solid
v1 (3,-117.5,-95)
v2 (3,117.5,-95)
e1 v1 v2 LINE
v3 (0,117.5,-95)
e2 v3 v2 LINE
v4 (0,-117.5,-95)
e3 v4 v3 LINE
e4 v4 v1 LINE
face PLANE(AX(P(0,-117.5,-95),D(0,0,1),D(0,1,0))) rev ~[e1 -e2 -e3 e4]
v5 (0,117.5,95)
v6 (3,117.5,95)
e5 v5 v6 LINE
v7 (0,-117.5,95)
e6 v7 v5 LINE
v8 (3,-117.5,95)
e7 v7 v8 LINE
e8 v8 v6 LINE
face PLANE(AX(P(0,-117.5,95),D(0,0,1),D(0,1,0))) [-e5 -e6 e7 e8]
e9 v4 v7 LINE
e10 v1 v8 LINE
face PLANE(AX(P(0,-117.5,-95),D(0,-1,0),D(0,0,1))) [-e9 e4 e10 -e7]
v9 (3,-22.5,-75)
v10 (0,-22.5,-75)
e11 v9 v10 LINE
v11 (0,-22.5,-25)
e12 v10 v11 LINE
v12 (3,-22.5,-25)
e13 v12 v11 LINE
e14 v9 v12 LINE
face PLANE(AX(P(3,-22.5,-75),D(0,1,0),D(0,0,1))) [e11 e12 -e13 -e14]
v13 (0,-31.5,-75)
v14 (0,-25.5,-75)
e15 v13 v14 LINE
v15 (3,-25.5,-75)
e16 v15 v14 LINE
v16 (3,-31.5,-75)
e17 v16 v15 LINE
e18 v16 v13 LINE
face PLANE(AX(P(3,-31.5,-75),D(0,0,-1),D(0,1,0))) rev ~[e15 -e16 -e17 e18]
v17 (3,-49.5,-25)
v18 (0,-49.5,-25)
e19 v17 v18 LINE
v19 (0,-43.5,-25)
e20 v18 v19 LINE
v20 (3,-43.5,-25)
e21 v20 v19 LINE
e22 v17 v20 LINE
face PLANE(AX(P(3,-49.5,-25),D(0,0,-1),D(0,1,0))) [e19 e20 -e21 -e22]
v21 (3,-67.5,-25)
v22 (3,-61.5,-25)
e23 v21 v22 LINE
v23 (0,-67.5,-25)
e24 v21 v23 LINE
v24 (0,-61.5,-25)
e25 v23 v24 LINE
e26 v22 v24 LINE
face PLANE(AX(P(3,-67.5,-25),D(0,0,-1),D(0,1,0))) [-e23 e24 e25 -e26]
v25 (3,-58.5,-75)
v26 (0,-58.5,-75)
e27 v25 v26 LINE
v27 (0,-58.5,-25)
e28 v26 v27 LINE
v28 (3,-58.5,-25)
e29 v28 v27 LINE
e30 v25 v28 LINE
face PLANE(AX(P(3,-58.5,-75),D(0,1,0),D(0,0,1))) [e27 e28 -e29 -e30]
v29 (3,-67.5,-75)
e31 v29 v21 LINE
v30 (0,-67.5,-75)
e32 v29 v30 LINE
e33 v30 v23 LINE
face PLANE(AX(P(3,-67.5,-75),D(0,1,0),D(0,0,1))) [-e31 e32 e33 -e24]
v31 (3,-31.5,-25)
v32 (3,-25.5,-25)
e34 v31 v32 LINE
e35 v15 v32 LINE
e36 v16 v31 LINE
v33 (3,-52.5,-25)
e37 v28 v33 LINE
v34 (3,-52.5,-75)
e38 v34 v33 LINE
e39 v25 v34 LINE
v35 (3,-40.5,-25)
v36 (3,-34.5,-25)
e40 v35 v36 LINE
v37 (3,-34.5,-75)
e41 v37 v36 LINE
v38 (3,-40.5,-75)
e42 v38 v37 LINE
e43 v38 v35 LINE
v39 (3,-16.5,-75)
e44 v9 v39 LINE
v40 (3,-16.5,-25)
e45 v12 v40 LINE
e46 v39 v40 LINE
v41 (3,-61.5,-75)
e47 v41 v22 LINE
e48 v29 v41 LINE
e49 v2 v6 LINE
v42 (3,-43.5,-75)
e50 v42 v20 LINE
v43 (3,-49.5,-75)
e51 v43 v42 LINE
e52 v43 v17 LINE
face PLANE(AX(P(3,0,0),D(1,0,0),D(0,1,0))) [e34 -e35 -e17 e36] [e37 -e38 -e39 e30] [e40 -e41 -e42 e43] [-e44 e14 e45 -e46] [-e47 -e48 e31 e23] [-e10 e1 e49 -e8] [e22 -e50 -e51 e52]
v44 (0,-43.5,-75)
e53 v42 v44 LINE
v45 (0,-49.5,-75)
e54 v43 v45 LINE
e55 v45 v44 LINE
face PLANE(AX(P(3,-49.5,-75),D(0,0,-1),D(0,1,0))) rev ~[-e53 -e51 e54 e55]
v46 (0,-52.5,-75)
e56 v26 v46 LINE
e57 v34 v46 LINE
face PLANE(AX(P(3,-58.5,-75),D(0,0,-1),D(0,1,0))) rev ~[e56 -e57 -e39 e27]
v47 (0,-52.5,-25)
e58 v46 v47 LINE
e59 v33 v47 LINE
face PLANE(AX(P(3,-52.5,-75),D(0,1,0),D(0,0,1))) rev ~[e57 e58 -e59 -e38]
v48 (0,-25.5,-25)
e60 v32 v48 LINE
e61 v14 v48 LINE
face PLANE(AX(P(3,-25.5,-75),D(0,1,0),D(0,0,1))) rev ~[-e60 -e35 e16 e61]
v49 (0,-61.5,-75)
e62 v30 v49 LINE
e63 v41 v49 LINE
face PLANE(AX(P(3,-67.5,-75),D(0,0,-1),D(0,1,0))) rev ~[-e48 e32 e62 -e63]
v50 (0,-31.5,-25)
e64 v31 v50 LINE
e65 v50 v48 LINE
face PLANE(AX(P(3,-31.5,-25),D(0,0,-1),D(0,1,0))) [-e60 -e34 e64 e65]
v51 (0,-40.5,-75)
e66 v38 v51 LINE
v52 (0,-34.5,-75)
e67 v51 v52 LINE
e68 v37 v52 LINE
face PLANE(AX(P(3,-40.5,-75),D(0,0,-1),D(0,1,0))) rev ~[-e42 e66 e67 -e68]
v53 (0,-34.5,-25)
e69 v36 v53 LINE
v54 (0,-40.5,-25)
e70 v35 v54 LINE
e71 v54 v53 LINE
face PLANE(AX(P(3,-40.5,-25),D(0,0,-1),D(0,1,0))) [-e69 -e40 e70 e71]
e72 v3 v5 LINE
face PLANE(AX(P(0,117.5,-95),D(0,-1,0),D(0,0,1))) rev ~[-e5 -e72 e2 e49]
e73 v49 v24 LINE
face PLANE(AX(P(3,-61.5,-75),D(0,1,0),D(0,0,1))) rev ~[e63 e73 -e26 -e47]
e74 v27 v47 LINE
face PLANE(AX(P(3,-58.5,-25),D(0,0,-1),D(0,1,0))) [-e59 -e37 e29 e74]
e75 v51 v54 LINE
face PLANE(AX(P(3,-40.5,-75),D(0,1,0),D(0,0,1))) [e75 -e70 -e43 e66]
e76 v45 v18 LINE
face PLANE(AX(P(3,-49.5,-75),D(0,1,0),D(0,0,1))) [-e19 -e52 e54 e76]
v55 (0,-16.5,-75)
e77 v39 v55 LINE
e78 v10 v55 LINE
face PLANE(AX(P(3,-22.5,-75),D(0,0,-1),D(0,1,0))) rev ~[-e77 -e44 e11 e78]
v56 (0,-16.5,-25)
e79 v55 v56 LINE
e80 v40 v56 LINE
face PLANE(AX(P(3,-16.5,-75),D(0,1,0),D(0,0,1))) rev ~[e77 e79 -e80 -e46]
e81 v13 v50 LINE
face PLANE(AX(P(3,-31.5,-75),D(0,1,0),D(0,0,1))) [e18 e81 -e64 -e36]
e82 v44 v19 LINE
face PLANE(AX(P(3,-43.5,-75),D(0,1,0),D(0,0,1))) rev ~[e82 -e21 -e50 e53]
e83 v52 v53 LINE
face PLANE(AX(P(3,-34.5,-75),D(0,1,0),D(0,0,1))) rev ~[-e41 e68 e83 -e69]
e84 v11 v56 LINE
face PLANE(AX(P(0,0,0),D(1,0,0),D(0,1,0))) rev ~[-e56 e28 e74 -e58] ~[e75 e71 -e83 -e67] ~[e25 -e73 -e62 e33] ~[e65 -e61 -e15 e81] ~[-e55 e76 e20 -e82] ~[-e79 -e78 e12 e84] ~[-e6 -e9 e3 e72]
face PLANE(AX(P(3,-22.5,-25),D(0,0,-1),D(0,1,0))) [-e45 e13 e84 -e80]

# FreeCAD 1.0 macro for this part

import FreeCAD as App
import Part
import Sketcher
from FreeCAD import Vector

doc = App.newDocument("Part")
body = doc.addObject("PartDesign::Body", "Body")

# Sketch on YZ plane
sketch1 = body.newObject("Sketcher::SketchObject", "Sketch")
sketch1.AttachmentSupport = (doc.getObject("YZ_Plane"), [""])
sketch1.MapMode = "FlatFace"
sketch1.addGeometry([
    Part.LineSegment(Vector(-118, 95, 0), Vector(-118, -95, 0)),
    Part.LineSegment(Vector(-118, -95, 0), Vector(118, -95, 0)),
    Part.LineSegment(Vector(118, -95, 0), Vector(118, 95, 0)),
    Part.LineSegment(Vector(118, 95, 0), Vector(-118, 95, 0)),
], False)
sketch1.addConstraint([
    Sketcher.Constraint("Coincident", 0, 2, 1, 1),
    Sketcher.Constraint("Coincident", 1, 2, 2, 1),
    Sketcher.Constraint("Coincident", 2, 2, 3, 1),
    Sketcher.Constraint("Coincident", 3, 2, 0, 1),
    Sketcher.Constraint("Vertical", 0),
    Sketcher.Constraint("Horizontal", 1),
    Sketcher.Constraint("Vertical", 2),
    Sketcher.Constraint("Horizontal", 3),
    Sketcher.Constraint("Symmetric", 0, 2, 2, 2, -1, 1),
    Sketcher.Constraint("DistanceX", 1, 1, 1, 2, 235.0),
    Sketcher.Constraint("DistanceY", 0, 2, 0, 1, 190.0),
])
pad1 = body.newObject("PartDesign::Pad", "Pad")
pad1.Profile = sketch1
pad1.Length = 3

# Sketch on YZ plane
sketch2 = body.newObject("Sketcher::SketchObject", "Sketch001")
sketch2.AttachmentSupport = (doc.getObject("YZ_Plane"), [""])
sketch2.MapMode = "FlatFace"
sketch2.AttachmentOffset = App.Placement(Vector(0, 0, 3), App.Rotation())
sketch2.addGeometry([
    Part.LineSegment(Vector(-68, -25, 0), Vector(-68, -75, 0)),  # 0
    Part.LineSegment(Vector(-68, -75, 0), Vector(-62, -75, 0)),  # 1
    Part.LineSegment(Vector(-62, -75, 0), Vector(-62, -25, 0)),  # 2
    Part.LineSegment(Vector(-62, -25, 0), Vector(-68, -25, 0)),  # 3
    Part.LineSegment(Vector(-58, -25, 0), Vector(-58, -75, 0)),  # 4
    Part.LineSegment(Vector(-58, -75, 0), Vector(-52, -75, 0)),  # 5
    Part.LineSegment(Vector(-52, -75, 0), Vector(-52, -25, 0)),  # 6
    Part.LineSegment(Vector(-52, -25, 0), Vector(-58, -25, 0)),  # 7
    Part.LineSegment(Vector(-50, -25, 0), Vector(-50, -75, 0)),  # 8
    Part.LineSegment(Vector(-50, -75, 0), Vector(-44, -75, 0)),  # 9
    Part.LineSegment(Vector(-44, -75, 0), Vector(-44, -25, 0)),  # 10
    Part.LineSegment(Vector(-44, -25, 0), Vector(-50, -25, 0)),  # 11
    Part.LineSegment(Vector(-40, -25, 0), Vector(-40, -75, 0)),  # 12
    Part.LineSegment(Vector(-40, -75, 0), Vector(-34, -75, 0)),  # 13
    Part.LineSegment(Vector(-34, -75, 0), Vector(-34, -25, 0)),  # 14
    Part.LineSegment(Vector(-34, -25, 0), Vector(-40, -25, 0)),  # 15
    Part.LineSegment(Vector(-32, -25, 0), Vector(-32, -75, 0)),  # 16
    Part.LineSegment(Vector(-32, -75, 0), Vector(-26, -75, 0)),  # 17
    Part.LineSegment(Vector(-26, -75, 0), Vector(-26, -25, 0)),  # 18
    Part.LineSegment(Vector(-26, -25, 0), Vector(-32, -25, 0)),  # 19
    Part.LineSegment(Vector(-22, -25, 0), Vector(-22, -75, 0)),  # 20
    Part.LineSegment(Vector(-22, -75, 0), Vector(-16, -75, 0)),  # 21
    Part.LineSegment(Vector(-16, -75, 0), Vector(-16, -25, 0)),  # 22
    Part.LineSegment(Vector(-16, -25, 0), Vector(-22, -25, 0)),  # 23
], False)
sketch2.addConstraint([
    Sketcher.Constraint("Coincident", 0, 2, 1, 1),
    Sketcher.Constraint("Coincident", 1, 2, 2, 1),
    Sketcher.Constraint("Coincident", 2, 2, 3, 1),
    Sketcher.Constraint("Coincident", 3, 2, 0, 1),
    Sketcher.Constraint("Coincident", 4, 2, 5, 1),
    Sketcher.Constraint("Coincident", 5, 2, 6, 1),
    Sketcher.Constraint("Coincident", 6, 2, 7, 1),
    Sketcher.Constraint("Coincident", 7, 2, 4, 1),
    Sketcher.Constraint("Coincident", 8, 2, 9, 1),
    Sketcher.Constraint("Coincident", 9, 2, 10, 1),
    Sketcher.Constraint("Coincident", 10, 2, 11, 1),
    Sketcher.Constraint("Coincident", 11, 2, 8, 1),
    Sketcher.Constraint("Coincident", 12, 2, 13, 1),
    Sketcher.Constraint("Coincident", 13, 2, 14, 1),
    Sketcher.Constraint("Coincident", 14, 2, 15, 1),
    Sketcher.Constraint("Coincident", 15, 2, 12, 1),
    Sketcher.Constraint("Coincident", 16, 2, 17, 1),
    Sketcher.Constraint("Coincident", 17, 2, 18, 1),
    Sketcher.Constraint("Coincident", 18, 2, 19, 1),
    Sketcher.Constraint("Coincident", 19, 2, 16, 1),
    Sketcher.Constraint("Coincident", 20, 2, 21, 1),
    Sketcher.Constraint("Coincident", 21, 2, 22, 1),
    Sketcher.Constraint("Coincident", 22, 2, 23, 1),
    Sketcher.Constraint("Coincident", 23, 2, 20, 1),
    Sketcher.Constraint("Vertical", 0),
    Sketcher.Constraint("Horizontal", 1),
    Sketcher.Constraint("Vertical", 2),
    Sketcher.Constraint("Horizontal", 3),
    Sketcher.Constraint("Vertical", 4),
    Sketcher.Constraint("Horizontal", 5),
    Sketcher.Constraint("Vertical", 6),
    Sketcher.Constraint("Horizontal", 7),
    Sketcher.Constraint("Vertical", 8),
    Sketcher.Constraint("Horizontal", 9),
    Sketcher.Constraint("Vertical", 10),
    Sketcher.Constraint("Horizontal", 11),
    Sketcher.Constraint("Vertical", 12),
    Sketcher.Constraint("Horizontal", 13),
    Sketcher.Constraint("Vertical", 14),
    Sketcher.Constraint("Horizontal", 15),
    Sketcher.Constraint("Vertical", 16),
    Sketcher.Constraint("Horizontal", 17),
    Sketcher.Constraint("Vertical", 18),
    Sketcher.Constraint("Horizontal", 19),
    Sketcher.Constraint("Vertical", 20),
    Sketcher.Constraint("Horizontal", 21),
    Sketcher.Constraint("Vertical", 22),
    Sketcher.Constraint("Horizontal", 23),
    Sketcher.Constraint("Horizontal", 1, 2, 4, 2),
    Sketcher.Constraint("Horizontal", 3, 2, 6, 2),
    Sketcher.Constraint("Horizontal", 5, 2, 8, 2),
    Sketcher.Constraint("Horizontal", 7, 2, 10, 2),
    Sketcher.Constraint("Horizontal", 9, 2, 12, 2),
    Sketcher.Constraint("Horizontal", 11, 2, 14, 2),
    Sketcher.Constraint("Horizontal", 13, 2, 16, 2),
    Sketcher.Constraint("Horizontal", 15, 2, 18, 2),
    Sketcher.Constraint("Horizontal", 17, 2, 20, 2),
    Sketcher.Constraint("Horizontal", 19, 2, 22, 2),
    Sketcher.Constraint("Equal", 3, 5),
    Sketcher.Constraint("Equal", 7, 9),
    Sketcher.Constraint("Equal", 11, 13),
    Sketcher.Constraint("Equal", 15, 17),
    Sketcher.Constraint("Equal", 19, 21),
    Sketcher.Constraint("DistanceX", 1, 1, 1, 2, 6.0),
    Sketcher.Constraint("DistanceY", 0, 2, 0, 1, 50.0),
    Sketcher.Constraint("DistanceY", 0, 2, -1, 1, 75.0),
    Sketcher.Constraint("DistanceX", 1, 2, 4, 2, 3.0),
    Sketcher.Constraint("DistanceX", 5, 2, 8, 2, 3.0),
    Sketcher.Constraint("DistanceX", 9, 2, 12, 2, 3.0),
    Sketcher.Constraint("DistanceX", 13, 2, 16, 2, 3.0),
    Sketcher.Constraint("DistanceX", 17, 2, 20, 2, 3.0),
    Sketcher.Constraint("DistanceX", 0, 2, -1, 1, 67.5),
])
pocket1 = body.newObject("PartDesign::Pocket", "Pocket")
pocket1.Profile = sketch2
pocket1.Length = 25

doc.recompute()
